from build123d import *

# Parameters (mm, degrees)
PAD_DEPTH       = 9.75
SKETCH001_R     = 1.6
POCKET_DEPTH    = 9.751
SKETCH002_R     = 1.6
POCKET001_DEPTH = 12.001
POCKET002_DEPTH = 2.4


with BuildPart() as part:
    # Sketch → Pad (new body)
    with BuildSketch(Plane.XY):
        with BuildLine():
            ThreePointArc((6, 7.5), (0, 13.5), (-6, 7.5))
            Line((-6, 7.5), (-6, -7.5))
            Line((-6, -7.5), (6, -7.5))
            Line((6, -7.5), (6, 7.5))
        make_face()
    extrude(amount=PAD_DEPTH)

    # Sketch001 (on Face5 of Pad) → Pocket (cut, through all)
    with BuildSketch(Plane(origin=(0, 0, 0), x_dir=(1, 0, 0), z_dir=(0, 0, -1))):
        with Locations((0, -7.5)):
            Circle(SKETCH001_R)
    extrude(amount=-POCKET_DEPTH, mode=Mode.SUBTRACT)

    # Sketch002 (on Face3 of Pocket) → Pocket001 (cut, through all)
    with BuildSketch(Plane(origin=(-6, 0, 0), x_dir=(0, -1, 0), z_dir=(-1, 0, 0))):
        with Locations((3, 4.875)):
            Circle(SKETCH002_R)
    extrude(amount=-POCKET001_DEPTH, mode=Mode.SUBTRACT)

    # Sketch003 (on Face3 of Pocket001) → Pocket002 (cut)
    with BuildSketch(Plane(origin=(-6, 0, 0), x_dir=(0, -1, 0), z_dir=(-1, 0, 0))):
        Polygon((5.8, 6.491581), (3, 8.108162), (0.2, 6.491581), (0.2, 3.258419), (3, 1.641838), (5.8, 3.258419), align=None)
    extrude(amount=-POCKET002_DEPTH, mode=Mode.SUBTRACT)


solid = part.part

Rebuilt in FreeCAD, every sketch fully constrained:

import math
import FreeCAD as App
import Part
import Sketcher

V = App.Vector
Q = App.Units.Quantity


def add_polygon(sketch, points):
    """Adds a closed chain of lines whose ends are joined by coincident constraints."""
    first, n = sketch.GeometryCount, len(points)
    for a, b in zip(points, points[1:] + points[:1]):
        sketch.addGeometry(Part.LineSegment(App.Vector(*a, 0), App.Vector(*b, 0)), False)
    for i in range(n):
        sketch.addConstraint(Sketcher.Constraint("Coincident", first + i, 2, first + (i + 1) % n, 1))

doc = App.newDocument("Part")
params = doc.addObject("Spreadsheet::Sheet", "Params")
for row, (alias, value) in enumerate([
    ("sketch1_radius", "6 mm"),
    ("sketch1_height", "15 mm"),
    ("pad1_length", "9.75 mm"),
    ("sketch2_diameter", "3.2 mm"),
    ("sketch3_diameter", "3.2 mm"),
    ("pocket3_length", "2.4 mm"),
], start=1):
    params.set(f"A{row}", alias)
    params.set(f"B{row}", "=" + value)
    params.setAlias(f"B{row}", alias)

body = doc.addObject("PartDesign::Body", "Body")

# Sketch on XY plane
sketch1 = body.newObject("Sketcher::SketchObject", "Sketch")
sketch1.AttachmentSupport = (doc.getObject("XY_Plane"), [""])
sketch1.MapMode = "FlatFace"
sketch1.addGeometry([
    Part.ArcOfCircle(Part.Circle(V(0, 7.5, 0), V(0, 0, 1), 6), math.radians(0), math.radians(180)),
    Part.LineSegment(V(-6, 7.5, 0), V(-6, -7.5, 0)),
    Part.LineSegment(V(-6, -7.5, 0), V(6, -7.5, 0)),
    Part.LineSegment(V(6, -7.5, 0), V(6, 7.5, 0)),
], False)
sketch1.addConstraint([
    Sketcher.Constraint("Tangent", 0, 2, 1, 1),
    Sketcher.Constraint("Coincident", 1, 2, 2, 1),
    Sketcher.Constraint("Coincident", 2, 2, 3, 1),
    Sketcher.Constraint("Tangent", 3, 2, 0, 1),
    Sketcher.Constraint("Vertical", 1),
    Sketcher.Constraint("Horizontal", 2),
    Sketcher.Constraint("Vertical", 3),
    Sketcher.Constraint("Symmetric", 0, 2, 2, 2, -1, 1),
    Sketcher.Constraint("Radius", 0, 6.0),
    Sketcher.Constraint("DistanceY", 1, 2, 1, 1, 15.0),
])
sketch1.setExpression("Constraints[8]", "Params.sketch1_radius")
sketch1.setExpression("Constraints[9]", "Params.sketch1_height")
pad1 = body.newObject("PartDesign::Pad", "Pad")
pad1.Profile = sketch1
pad1.setExpression("Length", "Params.pad1_length")

# Sketch on XY plane
sketch2 = body.newObject("Sketcher::SketchObject", "Sketch001")
sketch2.AttachmentSupport = (doc.getObject("XY_Plane"), [""])
sketch2.MapMode = "FlatFace"
sketch2.addGeometry(Part.Circle(V(0, 7.5, 0), V(0, 0, 1), 1.6), False)
sketch2.addConstraint([
    Sketcher.Constraint("PointOnObject", 0, 3, -2),
    Sketcher.Constraint("Diameter", 0, 3.2),
    Sketcher.Constraint("DistanceY", -1, 1, 0, 3, 7.5),
])
sketch2.setExpression("Constraints[1]", "Params.sketch2_diameter")
pocket1 = body.newObject("PartDesign::Pocket", "Pocket")
pocket1.Profile = sketch2
pocket1.Type = "ThroughAll"
pocket1.Reversed = True

# Sketch on YZ plane
sketch3 = body.newObject("Sketcher::SketchObject", "Sketch002")
sketch3.AttachmentSupport = (doc.getObject("YZ_Plane"), [""])
sketch3.MapMode = "FlatFace"
sketch3.AttachmentOffset = App.Placement(V(0, 0, -6), App.Rotation())
sketch3.addGeometry(Part.Circle(V(-3, 4.875, 0), V(0, 0, 1), 1.6), False)
sketch3.addConstraint([
    Sketcher.Constraint("Diameter", 0, 3.2),
    Sketcher.Constraint("DistanceX", 0, 3, -1, 1, 3.0),
    Sketcher.Constraint("DistanceY", -1, 1, 0, 3, 4.875),
])
sketch3.setExpression("Constraints[0]", "Params.sketch3_diameter")
pocket2 = body.newObject("PartDesign::Pocket", "Pocket001")
pocket2.Profile = sketch3
pocket2.Type = "ThroughAll"
pocket2.Reversed = True

# Sketch on YZ plane
sketch4 = body.newObject("Sketcher::SketchObject", "Sketch003")
sketch4.AttachmentSupport = (doc.getObject("YZ_Plane"), [""])
sketch4.MapMode = "FlatFace"
sketch4.AttachmentOffset = App.Placement(V(0, 0, -6), App.Rotation())
add_polygon(sketch4, [(-5.8, 6.491581), (-3, 8.108162), (-0.2, 6.491581), (-0.2, 3.258419), (-3, 1.641838), (-5.8, 3.258419)])  # lines 0-5
sketch4.addConstraint([
    Sketcher.Constraint("Vertical", 2),
    Sketcher.Constraint("Vertical", 5),
    Sketcher.Constraint("Parallel", 0, 3),
    Sketcher.Constraint("Parallel", 1, 4),
    Sketcher.Constraint("Horizontal", 2, 2, 4, 2),
    Sketcher.Constraint("Horizontal", 1, 2, 5, 2),
    Sketcher.Constraint("Vertical", 0, 2, 3, 2),
    Sketcher.Constraint("Angle", 0, Q("30.000004 deg")),
    Sketcher.Constraint("DistanceX", 0, 2, -1, 1, 3.0),
    Sketcher.Constraint("DistanceX", 1, 2, -1, 1, 0.2),
    Sketcher.Constraint("DistanceY", 2, 2, 2, 1, 3.233162),
    Sketcher.Constraint("DistanceY", -1, 1, 1, 2, 6.491581),
])
pocket3 = body.newObject("PartDesign::Pocket", "Pocket002")
pocket3.Profile = sketch4
pocket3.setExpression("Length", "Params.pocket3_length")
pocket3.Reversed = True

doc.recompute()
